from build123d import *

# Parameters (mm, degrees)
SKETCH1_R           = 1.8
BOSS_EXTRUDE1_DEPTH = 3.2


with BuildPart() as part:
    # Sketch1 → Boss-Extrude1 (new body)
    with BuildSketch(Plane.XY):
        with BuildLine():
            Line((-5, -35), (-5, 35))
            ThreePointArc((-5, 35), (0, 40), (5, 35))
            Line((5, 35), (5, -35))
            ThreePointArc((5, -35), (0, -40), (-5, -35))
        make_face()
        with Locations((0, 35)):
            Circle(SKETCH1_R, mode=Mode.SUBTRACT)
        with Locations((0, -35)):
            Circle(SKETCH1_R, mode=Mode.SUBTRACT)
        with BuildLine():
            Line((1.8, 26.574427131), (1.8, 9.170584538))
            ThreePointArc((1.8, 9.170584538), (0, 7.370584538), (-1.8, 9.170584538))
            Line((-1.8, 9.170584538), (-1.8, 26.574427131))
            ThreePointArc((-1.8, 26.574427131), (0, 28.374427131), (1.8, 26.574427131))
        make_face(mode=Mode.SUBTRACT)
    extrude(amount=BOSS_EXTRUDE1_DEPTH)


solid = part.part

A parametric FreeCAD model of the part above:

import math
import FreeCAD as App
import Part
import Sketcher

doc = App.newDocument("Part")
body = doc.addObject("PartDesign::Body", "Body")

sketch1 = body.newObject("Sketcher::SketchObject", "Sketch")
sketch1.AttachmentSupport = (doc.getObject("XY_Plane"), [""])
sketch1.MapMode = "FlatFace"
sketch1.addGeometry(Part.LineSegment(App.Vector(-5, 35, 0), App.Vector(-5, -35, 0)), False)
sketch1.addGeometry(Part.ArcOfCircle(Part.Circle(App.Vector(0, -35, 0), App.Vector(0, 0, 1), 5), math.radians(180), math.radians(360)), False)
sketch1.addGeometry(Part.LineSegment(App.Vector(5, -35, 0), App.Vector(5, 35, 0)), False)
sketch1.addGeometry(Part.ArcOfCircle(Part.Circle(App.Vector(0, 35, 0), App.Vector(0, 0, 1), 5), math.radians(0), math.radians(180)), False)
sketch1.addGeometry(Part.Circle(App.Vector(0, -35, 0), App.Vector(0, 0, 1), 1.8), False)
sketch1.addGeometry(Part.LineSegment(App.Vector(1.8, 26.6, 0), App.Vector(1.8, 9.2, 0)), False)
sketch1.addGeometry(Part.ArcOfCircle(Part.Circle(App.Vector(0, 9.2, 0), App.Vector(0, 0, 1), 1.8), math.radians(180), math.radians(360)), False)
sketch1.addGeometry(Part.LineSegment(App.Vector(-1.8, 9.2, 0), App.Vector(-1.8, 26.6, 0)), False)
sketch1.addGeometry(Part.ArcOfCircle(Part.Circle(App.Vector(0, 26.6, 0), App.Vector(0, 0, 1), 1.8), math.radians(0), math.radians(180)), False)
sketch1.addGeometry(Part.Circle(App.Vector(0, 35, 0), App.Vector(0, 0, 1), 1.8), False)
sketch1.addConstraint(Sketcher.Constraint("Tangent", 0, 2, 1, 1))
sketch1.addConstraint(Sketcher.Constraint("Tangent", 1, 2, 2, 1))
sketch1.addConstraint(Sketcher.Constraint("Tangent", 2, 2, 3, 1))
sketch1.addConstraint(Sketcher.Constraint("Tangent", 3, 2, 0, 1))
sketch1.addConstraint(Sketcher.Constraint("Tangent", 5, 2, 6, 2))
sketch1.addConstraint(Sketcher.Constraint("Tangent", 6, 1, 7, 1))
sketch1.addConstraint(Sketcher.Constraint("Tangent", 7, 2, 8, 2))
sketch1.addConstraint(Sketcher.Constraint("Tangent", 8, 1, 5, 1))
sketch1.addConstraint(Sketcher.Constraint("Vertical", 0))
sketch1.addConstraint(Sketcher.Constraint("Vertical", 2))
sketch1.addConstraint(Sketcher.Constraint("Vertical", 5))
sketch1.addConstraint(Sketcher.Constraint("Vertical", 7))
sketch1.addConstraint(Sketcher.Constraint("Coincident", 4, 3, 1, 3))
sketch1.addConstraint(Sketcher.Constraint("Coincident", 9, 3, 3, 3))
sketch1.addConstraint(Sketcher.Constraint("Equal", 4, 6))
sketch1.addConstraint(Sketcher.Constraint("Equal", 8, 9))
sketch1.addConstraint(Sketcher.Constraint("Symmetric", 1, 3, 3, 3, -1, 1))
sketch1.addConstraint(Sketcher.Constraint("PointOnObject", 6, 3, -2))
sketch1.addConstraint(Sketcher.Constraint("Radius", 1, 5.0))
sketch1.addConstraint(Sketcher.Constraint("Diameter", 4, 3.6))
sketch1.addConstraint(Sketcher.Constraint("DistanceY", 0, 2, 0, 1, 70.0))
sketch1.addConstraint(Sketcher.Constraint("DistanceY", 5, 2, 5, 1, 17.403843))
sketch1.addConstraint(Sketcher.Constraint("DistanceY", -1, 1, 6, 3, 9.170585))
pad1 = body.newObject("PartDesign::Pad", "Pad")
pad1.Profile = sketch1
pad1.Length = 3.2

doc.recompute()
